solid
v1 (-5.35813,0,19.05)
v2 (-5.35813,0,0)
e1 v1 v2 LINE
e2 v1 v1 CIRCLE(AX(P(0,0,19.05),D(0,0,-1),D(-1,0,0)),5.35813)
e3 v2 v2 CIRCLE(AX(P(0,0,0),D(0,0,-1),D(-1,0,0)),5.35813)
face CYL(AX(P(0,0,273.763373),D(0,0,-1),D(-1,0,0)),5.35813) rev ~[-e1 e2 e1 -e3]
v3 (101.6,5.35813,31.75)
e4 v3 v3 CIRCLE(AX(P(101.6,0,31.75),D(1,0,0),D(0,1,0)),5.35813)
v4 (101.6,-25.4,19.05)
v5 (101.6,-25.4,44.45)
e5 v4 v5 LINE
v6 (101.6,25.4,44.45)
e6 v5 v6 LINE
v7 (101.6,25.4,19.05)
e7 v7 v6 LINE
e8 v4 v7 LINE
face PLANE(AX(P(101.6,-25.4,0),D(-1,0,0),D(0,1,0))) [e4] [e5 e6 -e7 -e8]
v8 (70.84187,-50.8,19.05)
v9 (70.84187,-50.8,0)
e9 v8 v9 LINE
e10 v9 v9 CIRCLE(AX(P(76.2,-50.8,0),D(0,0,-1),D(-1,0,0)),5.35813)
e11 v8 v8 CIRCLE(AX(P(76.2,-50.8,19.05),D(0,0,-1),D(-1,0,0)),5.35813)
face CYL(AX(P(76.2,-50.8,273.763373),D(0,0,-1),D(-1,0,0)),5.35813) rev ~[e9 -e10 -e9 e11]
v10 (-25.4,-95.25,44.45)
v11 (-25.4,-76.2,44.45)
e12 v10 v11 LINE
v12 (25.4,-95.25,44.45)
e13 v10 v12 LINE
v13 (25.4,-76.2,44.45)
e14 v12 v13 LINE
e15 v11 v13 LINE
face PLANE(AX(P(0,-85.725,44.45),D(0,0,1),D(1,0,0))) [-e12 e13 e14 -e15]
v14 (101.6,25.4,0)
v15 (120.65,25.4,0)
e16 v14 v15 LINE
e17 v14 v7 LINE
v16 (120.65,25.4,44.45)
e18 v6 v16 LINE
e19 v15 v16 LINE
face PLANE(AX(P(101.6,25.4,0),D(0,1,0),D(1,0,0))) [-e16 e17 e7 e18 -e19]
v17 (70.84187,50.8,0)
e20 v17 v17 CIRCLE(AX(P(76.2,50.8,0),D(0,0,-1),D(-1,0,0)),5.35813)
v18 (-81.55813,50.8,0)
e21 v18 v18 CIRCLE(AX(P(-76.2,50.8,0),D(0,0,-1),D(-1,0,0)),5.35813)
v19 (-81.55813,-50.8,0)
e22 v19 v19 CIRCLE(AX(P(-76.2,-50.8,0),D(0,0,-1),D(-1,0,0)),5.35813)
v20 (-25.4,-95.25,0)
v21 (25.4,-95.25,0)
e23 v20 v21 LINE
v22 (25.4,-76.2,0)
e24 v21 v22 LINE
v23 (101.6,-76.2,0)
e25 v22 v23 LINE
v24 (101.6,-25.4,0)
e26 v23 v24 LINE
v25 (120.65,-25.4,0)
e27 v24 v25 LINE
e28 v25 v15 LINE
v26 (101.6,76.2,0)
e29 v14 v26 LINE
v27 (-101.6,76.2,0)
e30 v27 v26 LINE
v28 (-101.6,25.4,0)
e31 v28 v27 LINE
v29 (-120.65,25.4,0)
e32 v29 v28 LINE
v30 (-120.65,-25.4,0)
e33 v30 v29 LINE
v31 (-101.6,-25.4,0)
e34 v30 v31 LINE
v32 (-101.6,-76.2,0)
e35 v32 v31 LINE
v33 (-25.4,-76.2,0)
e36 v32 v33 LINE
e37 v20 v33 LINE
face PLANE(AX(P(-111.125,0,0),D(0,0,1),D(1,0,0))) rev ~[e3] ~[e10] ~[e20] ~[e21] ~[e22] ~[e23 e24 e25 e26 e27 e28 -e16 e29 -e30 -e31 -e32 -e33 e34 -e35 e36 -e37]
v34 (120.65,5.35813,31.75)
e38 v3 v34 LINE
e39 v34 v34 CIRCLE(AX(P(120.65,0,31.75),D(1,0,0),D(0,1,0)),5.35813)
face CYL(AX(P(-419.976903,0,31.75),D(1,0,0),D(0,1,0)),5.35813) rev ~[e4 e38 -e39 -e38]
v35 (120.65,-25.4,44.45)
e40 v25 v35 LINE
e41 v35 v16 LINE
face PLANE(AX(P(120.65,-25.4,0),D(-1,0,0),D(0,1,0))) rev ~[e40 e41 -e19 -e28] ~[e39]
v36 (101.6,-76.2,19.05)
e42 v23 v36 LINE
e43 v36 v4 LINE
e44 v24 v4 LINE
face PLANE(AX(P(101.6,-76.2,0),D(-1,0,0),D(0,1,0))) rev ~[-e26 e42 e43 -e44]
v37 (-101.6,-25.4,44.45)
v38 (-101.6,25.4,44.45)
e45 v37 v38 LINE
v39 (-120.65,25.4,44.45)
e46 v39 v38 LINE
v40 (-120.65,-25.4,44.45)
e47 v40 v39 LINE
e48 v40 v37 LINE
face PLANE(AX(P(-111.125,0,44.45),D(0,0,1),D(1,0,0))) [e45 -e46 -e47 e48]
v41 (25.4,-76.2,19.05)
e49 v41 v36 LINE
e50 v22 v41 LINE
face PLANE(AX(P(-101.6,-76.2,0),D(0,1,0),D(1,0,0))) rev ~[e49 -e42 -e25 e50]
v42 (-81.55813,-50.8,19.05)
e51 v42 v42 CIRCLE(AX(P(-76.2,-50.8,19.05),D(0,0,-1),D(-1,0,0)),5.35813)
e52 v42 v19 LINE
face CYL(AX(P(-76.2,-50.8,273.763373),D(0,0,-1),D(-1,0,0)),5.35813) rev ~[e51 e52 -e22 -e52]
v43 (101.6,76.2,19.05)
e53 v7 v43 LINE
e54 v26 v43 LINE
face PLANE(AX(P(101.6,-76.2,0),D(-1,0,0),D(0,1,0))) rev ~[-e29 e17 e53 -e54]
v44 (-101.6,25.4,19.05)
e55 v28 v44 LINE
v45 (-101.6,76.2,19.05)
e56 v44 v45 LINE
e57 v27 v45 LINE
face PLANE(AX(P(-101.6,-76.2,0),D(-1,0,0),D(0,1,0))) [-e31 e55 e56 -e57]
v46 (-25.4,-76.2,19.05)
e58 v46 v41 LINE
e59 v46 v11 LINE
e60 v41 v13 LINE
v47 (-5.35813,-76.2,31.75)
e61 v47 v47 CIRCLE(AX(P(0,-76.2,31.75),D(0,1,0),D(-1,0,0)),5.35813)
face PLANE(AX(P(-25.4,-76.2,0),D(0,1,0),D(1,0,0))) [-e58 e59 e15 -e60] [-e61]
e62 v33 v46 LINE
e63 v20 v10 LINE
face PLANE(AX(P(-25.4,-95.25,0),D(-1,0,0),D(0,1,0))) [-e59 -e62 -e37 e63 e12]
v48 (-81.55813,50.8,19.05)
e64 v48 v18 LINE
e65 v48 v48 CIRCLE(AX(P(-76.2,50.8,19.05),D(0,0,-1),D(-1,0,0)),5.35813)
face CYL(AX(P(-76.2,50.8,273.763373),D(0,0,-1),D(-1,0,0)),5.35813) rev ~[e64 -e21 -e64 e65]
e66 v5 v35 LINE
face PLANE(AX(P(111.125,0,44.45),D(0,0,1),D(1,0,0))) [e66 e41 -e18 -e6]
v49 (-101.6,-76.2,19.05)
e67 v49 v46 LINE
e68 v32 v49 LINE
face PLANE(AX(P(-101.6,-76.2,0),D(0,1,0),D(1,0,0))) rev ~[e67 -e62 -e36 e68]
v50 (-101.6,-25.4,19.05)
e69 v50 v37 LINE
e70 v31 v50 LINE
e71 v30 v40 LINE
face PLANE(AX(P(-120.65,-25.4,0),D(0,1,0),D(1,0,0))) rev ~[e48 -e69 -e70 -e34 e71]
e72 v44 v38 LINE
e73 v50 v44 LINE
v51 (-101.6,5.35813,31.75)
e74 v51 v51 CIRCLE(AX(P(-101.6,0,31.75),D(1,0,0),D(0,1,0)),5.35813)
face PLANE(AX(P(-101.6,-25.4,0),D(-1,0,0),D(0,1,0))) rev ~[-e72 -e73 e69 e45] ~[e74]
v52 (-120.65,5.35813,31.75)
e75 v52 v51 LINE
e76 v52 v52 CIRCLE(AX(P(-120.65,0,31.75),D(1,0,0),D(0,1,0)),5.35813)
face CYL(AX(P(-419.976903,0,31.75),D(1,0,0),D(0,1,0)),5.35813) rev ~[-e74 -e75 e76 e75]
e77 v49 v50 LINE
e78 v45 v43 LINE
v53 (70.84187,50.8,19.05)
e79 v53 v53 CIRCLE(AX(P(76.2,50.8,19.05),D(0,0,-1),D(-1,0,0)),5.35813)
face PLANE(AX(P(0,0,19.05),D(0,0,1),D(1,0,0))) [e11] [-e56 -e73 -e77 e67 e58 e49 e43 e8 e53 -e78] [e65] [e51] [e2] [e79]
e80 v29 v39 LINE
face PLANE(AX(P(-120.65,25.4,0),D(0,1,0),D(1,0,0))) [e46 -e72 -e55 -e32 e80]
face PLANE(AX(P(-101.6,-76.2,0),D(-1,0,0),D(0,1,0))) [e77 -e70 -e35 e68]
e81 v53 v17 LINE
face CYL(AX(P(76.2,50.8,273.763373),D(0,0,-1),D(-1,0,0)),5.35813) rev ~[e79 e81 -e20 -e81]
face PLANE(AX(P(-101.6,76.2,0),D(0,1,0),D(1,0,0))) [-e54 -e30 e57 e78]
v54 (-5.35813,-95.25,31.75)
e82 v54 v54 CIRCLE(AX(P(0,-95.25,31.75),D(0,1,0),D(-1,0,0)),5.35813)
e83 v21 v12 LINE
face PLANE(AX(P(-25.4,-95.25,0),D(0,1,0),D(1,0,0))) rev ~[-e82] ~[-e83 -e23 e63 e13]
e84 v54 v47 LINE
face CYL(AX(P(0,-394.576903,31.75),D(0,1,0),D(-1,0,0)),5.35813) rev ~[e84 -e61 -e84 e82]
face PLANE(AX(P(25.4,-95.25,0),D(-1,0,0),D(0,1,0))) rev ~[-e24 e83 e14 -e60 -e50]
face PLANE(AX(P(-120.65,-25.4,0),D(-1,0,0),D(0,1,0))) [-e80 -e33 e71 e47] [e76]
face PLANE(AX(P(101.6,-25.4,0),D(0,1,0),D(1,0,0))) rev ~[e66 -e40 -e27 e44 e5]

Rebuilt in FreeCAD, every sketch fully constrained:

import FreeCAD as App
import Part
import Sketcher
from FreeCAD import Vector
Q = App.Units.Quantity

doc = App.newDocument("Part")
body = doc.addObject("PartDesign::Body", "Body")

sketch1 = body.newObject("Sketcher::SketchObject", "Sketch")
sketch1.AttachmentSupport = (doc.getObject("XY_Plane"), [""])
sketch1.MapMode = "FlatFace"
sketch1.addGeometry([
    Part.LineSegment(Vector(-102, 76, 0), Vector(-102, -76, 0)),
    Part.LineSegment(Vector(-102, -76, 0), Vector(102, -76, 0)),
    Part.LineSegment(Vector(102, -76, 0), Vector(102, 76, 0)),
    Part.LineSegment(Vector(102, 76, 0), Vector(-102, 76, 0)),
], False)
sketch1.addConstraint([
    Sketcher.Constraint("Coincident", 0, 2, 1, 1),
    Sketcher.Constraint("Coincident", 1, 2, 2, 1),
    Sketcher.Constraint("Coincident", 2, 2, 3, 1),
    Sketcher.Constraint("Coincident", 3, 2, 0, 1),
    Sketcher.Constraint("Vertical", 0),
    Sketcher.Constraint("Horizontal", 1),
    Sketcher.Constraint("Vertical", 2),
    Sketcher.Constraint("Horizontal", 3),
    Sketcher.Constraint("Symmetric", 0, 2, 2, 2, -1, 1),
    Sketcher.Constraint("DistanceX", 1, 1, 1, 2, Q("8 in")),
    Sketcher.Constraint("DistanceY", 0, 2, 0, 1, Q("6 in")),
])
pad1 = body.newObject("PartDesign::Pad", "Pad")
pad1.Profile = sketch1
pad1.Length = Q("0.75 in")

sketch2 = body.newObject("Sketcher::SketchObject", "Sketch001")
sketch2.AttachmentSupport = (doc.getObject("XY_Plane"), [""])
sketch2.MapMode = "FlatFace"
sketch2.AttachmentOffset = App.Placement(Vector(0, 0, 0.75 * 25.4), App.Rotation())
sketch2.addGeometry([
    Part.Circle(Vector(-76, 51, 0), Vector(0, 0, 1), 5),
    Part.Circle(Vector(76, 51, 0), Vector(0, 0, 1), 5),
    Part.Circle(Vector(0, 0, 0), Vector(0, 0, 1), 5),
    Part.Circle(Vector(-76, -51, 0), Vector(0, 0, 1), 5),
    Part.Circle(Vector(76, -51, 0), Vector(0, 0, 1), 5),
], False)
sketch2.addConstraint([
    Sketcher.Constraint("Coincident", 2, 3, -1, 1),
    Sketcher.Constraint("Equal", 0, 1),
    Sketcher.Constraint("Equal", 1, 2),
    Sketcher.Constraint("Equal", 2, 3),
    Sketcher.Constraint("Equal", 3, 4),
    Sketcher.Constraint("Symmetric", 1, 3, 3, 3, -1, 1),
    Sketcher.Constraint("Symmetric", 0, 3, 4, 3, -1, 1),
    Sketcher.Constraint("Symmetric", 0, 3, 1, 3, -2),
    Sketcher.Constraint("DistanceX", 0, 3, -1, 1, Q("3 in")),
    Sketcher.Constraint("DistanceY", -1, 1, 0, 3, Q("2 in")),
    Sketcher.Constraint("Diameter", 0, Q("0.4219 in")),
])
doc.recompute()
hole = body.newObject("PartDesign::Hole", "Hole")
hole.Profile = sketch2
hole.ThreadType = "None"
hole.Diameter = Q("0.4219 in")
hole.DepthType = "ThroughAll"

sketch3 = body.newObject("Sketcher::SketchObject", "Sketch002")
sketch3.AttachmentSupport = (doc.getObject("XY_Plane"), [""])
sketch3.MapMode = "FlatFace"
sketch3.addGeometry([
    Part.LineSegment(Vector(-121, 25, 0), Vector(-121, -25, 0)),
    Part.LineSegment(Vector(-121, -25, 0), Vector(-102, -25, 0)),
    Part.LineSegment(Vector(-102, -25, 0), Vector(-102, 25, 0)),
    Part.LineSegment(Vector(-102, 25, 0), Vector(-121, 25, 0)),
    Part.LineSegment(Vector(-25, -76, 0), Vector(-25, -95, 0)),
    Part.LineSegment(Vector(-25, -95, 0), Vector(25, -95, 0)),
    Part.LineSegment(Vector(25, -95, 0), Vector(25, -76, 0)),
    Part.LineSegment(Vector(25, -76, 0), Vector(-25, -76, 0)),
    Part.LineSegment(Vector(102, 25, 0), Vector(102, -25, 0)),
    Part.LineSegment(Vector(102, -25, 0), Vector(121, -25, 0)),
    Part.LineSegment(Vector(121, -25, 0), Vector(121, 25, 0)),
    Part.LineSegment(Vector(121, 25, 0), Vector(102, 25, 0)),
], False)
sketch3.addConstraint([
    Sketcher.Constraint("Coincident", 0, 2, 1, 1),
    Sketcher.Constraint("Coincident", 1, 2, 2, 1),
    Sketcher.Constraint("Coincident", 2, 2, 3, 1),
    Sketcher.Constraint("Coincident", 3, 2, 0, 1),
    Sketcher.Constraint("Coincident", 4, 2, 5, 1),
    Sketcher.Constraint("Coincident", 5, 2, 6, 1),
    Sketcher.Constraint("Coincident", 6, 2, 7, 1),
    Sketcher.Constraint("Coincident", 7, 2, 4, 1),
    Sketcher.Constraint("Coincident", 8, 2, 9, 1),
    Sketcher.Constraint("Coincident", 9, 2, 10, 1),
    Sketcher.Constraint("Coincident", 10, 2, 11, 1),
    Sketcher.Constraint("Coincident", 11, 2, 8, 1),
    Sketcher.Constraint("Vertical", 0),
    Sketcher.Constraint("Horizontal", 1),
    Sketcher.Constraint("Vertical", 2),
    Sketcher.Constraint("Horizontal", 3),
    Sketcher.Constraint("Vertical", 4),
    Sketcher.Constraint("Horizontal", 5),
    Sketcher.Constraint("Vertical", 6),
    Sketcher.Constraint("Horizontal", 7),
    Sketcher.Constraint("Vertical", 8),
    Sketcher.Constraint("Horizontal", 9),
    Sketcher.Constraint("Vertical", 10),
    Sketcher.Constraint("Horizontal", 11),
    Sketcher.Constraint("Symmetric", 2, 2, 8, 2, -1, 1),
    Sketcher.Constraint("Symmetric", 0, 2, 10, 2, -1, 1),
    Sketcher.Constraint("Horizontal", 1, 2, 8, 2),
    Sketcher.Constraint("Equal", 7, 0),
    Sketcher.Constraint("Equal", 11, 4),
    Sketcher.Constraint("DistanceX", 5, 1, 5, 2, Q("2 in")),
    Sketcher.Constraint("DistanceX", 1, 2, -1, 1, Q("4 in")),
    Sketcher.Constraint("DistanceX", 4, 2, -1, 1, Q("1 in")),
    Sketcher.Constraint("DistanceY", 6, 2, -1, 1, Q("3 in")),
    Sketcher.Constraint("DistanceX", 1, 1, 1, 2, Q("0.75 in")),
])
pad2 = body.newObject("PartDesign::Pad", "Pad001")
pad2.Profile = sketch3
pad2.Length = Q("1.75 in")

sketch4 = body.newObject("Sketcher::SketchObject", "Sketch003")
sketch4.AttachmentSupport = (doc.getObject("XZ_Plane"), [""])
sketch4.MapMode = "FlatFace"
sketch4.AttachmentOffset = App.Placement(Vector(0, 0, 3.75 * 25.4), App.Rotation())
sketch4.addGeometry(Part.Circle(Vector(0, 32, 0), Vector(0, 0, 1), 5), False)
sketch4.addConstraint([
    Sketcher.Constraint("PointOnObject", 0, 3, -2),
    Sketcher.Constraint("Diameter", 0, Q("0.4219 in")),
    Sketcher.Constraint("DistanceY", -1, 1, 0, 3, Q("1.25 in")),
])
doc.recompute()
hole2 = body.newObject("PartDesign::Hole", "Hole001")
hole2.Profile = sketch4
hole2.ThreadType = "None"
hole2.Diameter = Q("0.4219 in")
hole2.DepthType = "ThroughAll"

sketch5 = body.newObject("Sketcher::SketchObject", "Sketch004")
sketch5.AttachmentSupport = (doc.getObject("YZ_Plane"), [""])
sketch5.MapMode = "FlatFace"
sketch5.AttachmentOffset = App.Placement(Vector(0, 0, -4.75 * 25.4), App.Rotation())
sketch5.addGeometry(Part.Circle(Vector(0, 32, 0), Vector(0, 0, 1), 5), False)
sketch5.addConstraint([
    Sketcher.Constraint("PointOnObject", 0, 3, -2),
    Sketcher.Constraint("Diameter", 0, Q("0.4219 in")),
    Sketcher.Constraint("DistanceY", -1, 1, 0, 3, Q("1.25 in")),
])
doc.recompute()
hole3 = body.newObject("PartDesign::Hole", "Hole002")
hole3.Profile = sketch5
hole3.ThreadType = "None"
hole3.Diameter = Q("0.4219 in")
hole3.DepthType = "ThroughAll"
hole3.Reversed = True

doc.recompute()
